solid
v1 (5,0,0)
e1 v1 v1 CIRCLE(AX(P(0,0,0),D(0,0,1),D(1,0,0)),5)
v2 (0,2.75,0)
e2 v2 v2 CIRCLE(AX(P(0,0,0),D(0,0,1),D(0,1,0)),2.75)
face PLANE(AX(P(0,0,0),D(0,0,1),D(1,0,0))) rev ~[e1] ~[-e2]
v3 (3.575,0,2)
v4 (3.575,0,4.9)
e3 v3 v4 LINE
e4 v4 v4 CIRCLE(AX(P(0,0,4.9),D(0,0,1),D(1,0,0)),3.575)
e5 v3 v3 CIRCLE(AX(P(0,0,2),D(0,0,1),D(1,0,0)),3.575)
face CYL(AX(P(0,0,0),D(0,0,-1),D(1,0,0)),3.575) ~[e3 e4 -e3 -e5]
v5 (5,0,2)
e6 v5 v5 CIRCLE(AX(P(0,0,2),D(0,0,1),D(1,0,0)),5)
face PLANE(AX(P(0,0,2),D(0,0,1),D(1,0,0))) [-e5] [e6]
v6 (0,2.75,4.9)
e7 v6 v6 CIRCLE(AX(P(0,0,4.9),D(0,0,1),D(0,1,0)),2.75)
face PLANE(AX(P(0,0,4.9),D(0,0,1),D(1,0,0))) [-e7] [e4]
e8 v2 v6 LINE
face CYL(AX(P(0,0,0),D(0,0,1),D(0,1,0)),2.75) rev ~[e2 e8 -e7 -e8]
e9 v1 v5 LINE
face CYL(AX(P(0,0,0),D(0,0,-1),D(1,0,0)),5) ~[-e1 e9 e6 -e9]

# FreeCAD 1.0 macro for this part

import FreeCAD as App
import Part
import Sketcher
from FreeCAD import Vector

doc = App.newDocument("Part")
body = doc.addObject("PartDesign::Body", "Body")

# Sketch on XY plane
sketch1 = body.newObject("Sketcher::SketchObject", "Sketch")
sketch1.AttachmentSupport = (doc.getObject("XY_Plane"), [""])
sketch1.MapMode = "FlatFace"
sketch1.addGeometry([
    Part.Circle(Vector(0, 0, 0), Vector(0, 0, 1), 5),
    Part.Circle(Vector(0, 0, 0), Vector(0, 0, 1), 3.6),
], False)
sketch1.addConstraint([
    Sketcher.Constraint("Coincident", 0, 3, -1, 1),
    Sketcher.Constraint("Coincident", 1, 3, -1, 1),
    Sketcher.Constraint("Diameter", 0, 10.0),
    Sketcher.Constraint("Diameter", 1, 7.15),
])
pad1 = body.newObject("PartDesign::Pad", "Pad")
pad1.Profile = sketch1
pad1.Length = 2

# Sketch on XY plane
sketch2 = body.newObject("Sketcher::SketchObject", "Sketch001")
sketch2.AttachmentSupport = (doc.getObject("XY_Plane"), [""])
sketch2.MapMode = "FlatFace"
sketch2.addGeometry(Part.Circle(Vector(0, 0, 0), Vector(0, 0, 1), 3.6), False)
sketch2.addConstraint([
    Sketcher.Constraint("Coincident", 0, 3, -1, 1),
    Sketcher.Constraint("Diameter", 0, 7.15),
])
pad2 = body.newObject("PartDesign::Pad", "Pad001")
pad2.Profile = sketch2
pad2.Length = 4.9

# Sketch on XY plane
sketch3 = body.newObject("Sketcher::SketchObject", "Sketch002")
sketch3.AttachmentSupport = (doc.getObject("XY_Plane"), [""])
sketch3.MapMode = "FlatFace"
sketch3.addGeometry(Part.Circle(Vector(0, 0, 0), Vector(0, 0, 1), 2.8), False)
sketch3.addConstraint([
    Sketcher.Constraint("Coincident", 0, 3, -1, 1),
    Sketcher.Constraint("Diameter", 0, 5.5),
])
doc.recompute()
hole = body.newObject("PartDesign::Hole", "Hole")
hole.Profile = sketch3
hole.ThreadType = "None"
hole.Diameter = 5.5
hole.DepthType = "Dimension"
hole.Depth = 10
hole.DrillPoint = "Angled"
hole.DrillPointAngle = 118
hole.Reversed = True

doc.recompute()
